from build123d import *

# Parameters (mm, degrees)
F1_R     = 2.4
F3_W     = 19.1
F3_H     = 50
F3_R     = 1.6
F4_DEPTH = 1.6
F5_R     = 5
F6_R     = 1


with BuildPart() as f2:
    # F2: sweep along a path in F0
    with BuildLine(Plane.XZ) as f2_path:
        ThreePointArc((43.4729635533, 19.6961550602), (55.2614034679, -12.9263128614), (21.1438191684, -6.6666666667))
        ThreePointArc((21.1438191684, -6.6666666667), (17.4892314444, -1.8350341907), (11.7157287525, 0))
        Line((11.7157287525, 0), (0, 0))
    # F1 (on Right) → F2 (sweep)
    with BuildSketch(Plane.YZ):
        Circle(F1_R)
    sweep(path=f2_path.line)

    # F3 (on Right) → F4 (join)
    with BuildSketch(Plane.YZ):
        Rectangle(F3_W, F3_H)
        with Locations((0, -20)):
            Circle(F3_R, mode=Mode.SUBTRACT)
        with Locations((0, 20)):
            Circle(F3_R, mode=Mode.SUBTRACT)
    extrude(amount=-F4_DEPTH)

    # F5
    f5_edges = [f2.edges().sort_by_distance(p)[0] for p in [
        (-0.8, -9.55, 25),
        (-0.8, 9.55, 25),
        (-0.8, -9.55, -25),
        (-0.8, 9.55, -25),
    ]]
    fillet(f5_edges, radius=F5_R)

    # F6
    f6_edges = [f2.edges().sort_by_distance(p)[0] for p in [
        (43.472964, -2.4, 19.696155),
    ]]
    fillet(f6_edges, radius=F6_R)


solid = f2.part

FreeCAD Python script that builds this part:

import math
import FreeCAD as App
import Part
import Sketcher

V = App.Vector
Q = App.Units.Quantity


def edges_at(feature, points):
    """Names of the edges that pass closest to the given points."""
    edges = feature.Shape.Edges
    near = lambda p: min(range(len(edges)), key=lambda i: edges[i].distToShape(Part.Vertex(*p))[0])
    return sorted({f"Edge{near(p) + 1}" for p in points})


def add_polygon(sketch, points):
    """Adds a closed chain of lines whose ends are joined by coincident constraints."""
    first, n = sketch.GeometryCount, len(points)
    for a, b in zip(points, points[1:] + points[:1]):
        sketch.addGeometry(Part.LineSegment(App.Vector(*a, 0), App.Vector(*b, 0)), False)
    for i in range(n):
        sketch.addConstraint(Sketcher.Constraint("Coincident", first + i, 2, first + (i + 1) % n, 1))

doc = App.newDocument("Part")
body = doc.addObject("PartDesign::Body", "Body")

# Sketch on YZ plane
sketch1 = body.newObject("Sketcher::SketchObject", "Sketch")
sketch1.AttachmentSupport = (doc.getObject("YZ_Plane"), [""])
sketch1.MapMode = "FlatFace"
sketch1.addGeometry(Part.Circle(V(0, 0, 0), V(0, 0, 1), 2.4), False)
sketch1.addConstraint([
    Sketcher.Constraint("Coincident", 0, 3, -1, 1),
    Sketcher.Constraint("Diameter", 0, Q("4.8 mm")),
])

# Sketch on XZ plane
sketch2 = body.newObject("Sketcher::SketchObject", "Sketch001")
sketch2.AttachmentSupport = (doc.getObject("XZ_Plane"), [""])
sketch2.MapMode = "FlatFace"
sketch2.addGeometry([
    Part.ArcOfCircle(Part.Circle(V(40, 0, 0), V(0, 0, 1), 20), math.radians(-161), math.radians(80)),
    Part.ArcOfCircle(Part.Circle(V(12, -10, 0), V(0, 0, 1), 10), math.radians(19), math.radians(90)),
    Part.LineSegment(V(12, 0, 0), V(0, 0, 0)),
], False)
sketch2.addConstraint([
    Sketcher.Constraint("Tangent", 0, 1, 1, 1),
    Sketcher.Constraint("Tangent", 1, 2, 2, 1),
    Sketcher.Constraint("Horizontal", 2),
    Sketcher.Constraint("Coincident", 2, 2, -1, 1),
    Sketcher.Constraint("PointOnObject", 0, 3, -1),
    Sketcher.Constraint("Radius", 0, Q("20 mm")),
    Sketcher.Constraint("Radius", 1, Q("10 mm")),
    Sketcher.Constraint("DistanceX", -1, 1, 0, 3, Q("40 mm")),
    Sketcher.Constraint("DistanceY", 0, 1, 0, 2, Q("26.362822 mm")),
])
doc.recompute()

additivepipe = body.newObject("PartDesign::AdditivePipe", "AdditivePipe")
additivepipe.Profile = sketch1
additivepipe.Spine = (sketch2, ["Edge1", "Edge2", "Edge3"])

# Sketch on YZ plane
sketch3 = body.newObject("Sketcher::SketchObject", "Sketch002")
sketch3.AttachmentSupport = (doc.getObject("YZ_Plane"), [""])
sketch3.MapMode = "FlatFace"
add_polygon(sketch3, [(-9.6, 25), (-9.6, -25), (9.6, -25), (9.6, 25)])  # lines 0-3
sketch3.addGeometry(Part.Circle(V(0, -20, 0), V(0, 0, 1), 1.6), False)  # 4
sketch3.addGeometry(Part.Circle(V(0, 20, 0), V(0, 0, 1), 1.6), False)  # 5
sketch3.addConstraint([
    Sketcher.Constraint("Vertical", 0),
    Sketcher.Constraint("Horizontal", 1),
    Sketcher.Constraint("Vertical", 2),
    Sketcher.Constraint("Horizontal", 3),
    Sketcher.Constraint("Equal", 4, 5),
    Sketcher.Constraint("Symmetric", 4, 3, 5, 3, -1, 1),
    Sketcher.Constraint("Symmetric", 0, 2, 2, 2, -1, 1),
    Sketcher.Constraint("PointOnObject", 4, 3, -2),
    Sketcher.Constraint("Diameter", 4, Q("3.2 mm")),
    Sketcher.Constraint("DistanceY", 0, 2, 0, 1, Q("50 mm")),
    Sketcher.Constraint("DistanceX", 1, 1, 1, 2, Q("19.1 mm")),
    Sketcher.Constraint("DistanceY", 4, 3, -1, 1, Q("20 mm")),
])
pad1 = body.newObject("PartDesign::Pad", "Pad")
pad1.Profile = sketch3
pad1.Length = 1.6
pad1.Reversed = True
doc.recompute()

fillet = body.newObject("PartDesign::Fillet", "Fillet")
fillet.Base = (pad1, edges_at(pad1, [
    (-0.8, -9.55, 25),
    (-0.8, 9.55, 25),
    (-0.8, -9.55, -25),
    (-0.8, 9.55, -25),
]))
fillet.Radius = 5
doc.recompute()

fillet2 = body.newObject("PartDesign::Fillet", "Fillet001")
fillet2.Base = (fillet, edges_at(fillet, [(43.473, -2.4, 19.696)]))
fillet2.Radius = 1

doc.recompute()
